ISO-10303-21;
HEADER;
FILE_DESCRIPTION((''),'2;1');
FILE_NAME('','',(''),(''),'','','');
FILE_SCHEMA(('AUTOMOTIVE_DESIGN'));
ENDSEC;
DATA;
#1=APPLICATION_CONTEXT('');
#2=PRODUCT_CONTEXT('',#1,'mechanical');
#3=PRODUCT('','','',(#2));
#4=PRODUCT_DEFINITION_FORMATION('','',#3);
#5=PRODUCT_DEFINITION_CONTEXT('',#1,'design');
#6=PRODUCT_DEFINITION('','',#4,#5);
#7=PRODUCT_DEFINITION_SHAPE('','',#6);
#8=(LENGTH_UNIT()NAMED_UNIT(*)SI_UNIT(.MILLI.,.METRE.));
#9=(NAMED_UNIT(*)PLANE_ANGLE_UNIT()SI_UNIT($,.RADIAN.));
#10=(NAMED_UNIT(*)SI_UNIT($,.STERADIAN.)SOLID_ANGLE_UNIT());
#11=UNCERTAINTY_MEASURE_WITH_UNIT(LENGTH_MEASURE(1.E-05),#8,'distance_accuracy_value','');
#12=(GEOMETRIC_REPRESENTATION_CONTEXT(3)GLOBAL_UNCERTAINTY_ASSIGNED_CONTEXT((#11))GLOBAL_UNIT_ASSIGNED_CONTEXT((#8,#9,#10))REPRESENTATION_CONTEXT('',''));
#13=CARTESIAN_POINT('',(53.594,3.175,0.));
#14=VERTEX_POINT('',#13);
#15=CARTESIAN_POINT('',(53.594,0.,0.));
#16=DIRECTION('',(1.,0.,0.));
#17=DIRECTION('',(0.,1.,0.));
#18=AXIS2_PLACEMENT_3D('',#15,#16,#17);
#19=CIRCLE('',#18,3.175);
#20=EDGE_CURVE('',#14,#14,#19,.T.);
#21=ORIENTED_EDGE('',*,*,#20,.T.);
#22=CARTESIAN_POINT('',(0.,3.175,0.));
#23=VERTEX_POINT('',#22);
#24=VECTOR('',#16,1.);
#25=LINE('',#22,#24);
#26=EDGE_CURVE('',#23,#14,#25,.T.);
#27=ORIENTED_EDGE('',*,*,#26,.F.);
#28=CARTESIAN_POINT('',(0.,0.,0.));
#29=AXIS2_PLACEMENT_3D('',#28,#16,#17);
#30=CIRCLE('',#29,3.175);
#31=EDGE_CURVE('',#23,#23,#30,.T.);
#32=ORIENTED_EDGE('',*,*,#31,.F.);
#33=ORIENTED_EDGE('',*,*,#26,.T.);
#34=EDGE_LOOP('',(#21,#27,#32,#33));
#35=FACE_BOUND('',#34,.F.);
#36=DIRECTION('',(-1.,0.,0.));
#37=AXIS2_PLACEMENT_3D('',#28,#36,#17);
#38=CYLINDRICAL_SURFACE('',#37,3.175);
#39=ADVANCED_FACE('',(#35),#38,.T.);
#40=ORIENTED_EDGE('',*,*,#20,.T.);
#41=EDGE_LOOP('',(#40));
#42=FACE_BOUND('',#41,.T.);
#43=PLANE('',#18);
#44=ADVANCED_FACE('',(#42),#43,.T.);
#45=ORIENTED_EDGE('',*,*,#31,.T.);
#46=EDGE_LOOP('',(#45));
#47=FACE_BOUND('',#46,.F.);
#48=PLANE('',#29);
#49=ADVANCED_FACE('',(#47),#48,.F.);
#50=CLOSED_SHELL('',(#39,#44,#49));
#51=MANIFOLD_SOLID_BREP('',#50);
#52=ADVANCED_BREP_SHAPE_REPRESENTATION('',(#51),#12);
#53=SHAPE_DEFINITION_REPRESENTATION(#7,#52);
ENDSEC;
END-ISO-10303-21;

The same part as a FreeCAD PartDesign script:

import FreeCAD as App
import Part
import Sketcher
from FreeCAD import Vector
Q = App.Units.Quantity

doc = App.newDocument("Part")
body = doc.addObject("PartDesign::Body", "Body")

# Sketch on YZ plane
sketch1 = body.newObject("Sketcher::SketchObject", "Sketch")
sketch1.AttachmentSupport = (doc.getObject("YZ_Plane"), [""])
sketch1.MapMode = "FlatFace"
sketch1.addGeometry(Part.Circle(Vector(0, 0, 0), Vector(0, 0, 1), 3.2), False)
sketch1.addConstraint([
    Sketcher.Constraint("Coincident", 0, 3, -1, 1),
    Sketcher.Constraint("Diameter", 0, Q("0.25 in")),
])
pad1 = body.newObject("PartDesign::Pad", "Pad")
pad1.Profile = sketch1
pad1.Length = Q("2.11 in")

doc.recompute()
